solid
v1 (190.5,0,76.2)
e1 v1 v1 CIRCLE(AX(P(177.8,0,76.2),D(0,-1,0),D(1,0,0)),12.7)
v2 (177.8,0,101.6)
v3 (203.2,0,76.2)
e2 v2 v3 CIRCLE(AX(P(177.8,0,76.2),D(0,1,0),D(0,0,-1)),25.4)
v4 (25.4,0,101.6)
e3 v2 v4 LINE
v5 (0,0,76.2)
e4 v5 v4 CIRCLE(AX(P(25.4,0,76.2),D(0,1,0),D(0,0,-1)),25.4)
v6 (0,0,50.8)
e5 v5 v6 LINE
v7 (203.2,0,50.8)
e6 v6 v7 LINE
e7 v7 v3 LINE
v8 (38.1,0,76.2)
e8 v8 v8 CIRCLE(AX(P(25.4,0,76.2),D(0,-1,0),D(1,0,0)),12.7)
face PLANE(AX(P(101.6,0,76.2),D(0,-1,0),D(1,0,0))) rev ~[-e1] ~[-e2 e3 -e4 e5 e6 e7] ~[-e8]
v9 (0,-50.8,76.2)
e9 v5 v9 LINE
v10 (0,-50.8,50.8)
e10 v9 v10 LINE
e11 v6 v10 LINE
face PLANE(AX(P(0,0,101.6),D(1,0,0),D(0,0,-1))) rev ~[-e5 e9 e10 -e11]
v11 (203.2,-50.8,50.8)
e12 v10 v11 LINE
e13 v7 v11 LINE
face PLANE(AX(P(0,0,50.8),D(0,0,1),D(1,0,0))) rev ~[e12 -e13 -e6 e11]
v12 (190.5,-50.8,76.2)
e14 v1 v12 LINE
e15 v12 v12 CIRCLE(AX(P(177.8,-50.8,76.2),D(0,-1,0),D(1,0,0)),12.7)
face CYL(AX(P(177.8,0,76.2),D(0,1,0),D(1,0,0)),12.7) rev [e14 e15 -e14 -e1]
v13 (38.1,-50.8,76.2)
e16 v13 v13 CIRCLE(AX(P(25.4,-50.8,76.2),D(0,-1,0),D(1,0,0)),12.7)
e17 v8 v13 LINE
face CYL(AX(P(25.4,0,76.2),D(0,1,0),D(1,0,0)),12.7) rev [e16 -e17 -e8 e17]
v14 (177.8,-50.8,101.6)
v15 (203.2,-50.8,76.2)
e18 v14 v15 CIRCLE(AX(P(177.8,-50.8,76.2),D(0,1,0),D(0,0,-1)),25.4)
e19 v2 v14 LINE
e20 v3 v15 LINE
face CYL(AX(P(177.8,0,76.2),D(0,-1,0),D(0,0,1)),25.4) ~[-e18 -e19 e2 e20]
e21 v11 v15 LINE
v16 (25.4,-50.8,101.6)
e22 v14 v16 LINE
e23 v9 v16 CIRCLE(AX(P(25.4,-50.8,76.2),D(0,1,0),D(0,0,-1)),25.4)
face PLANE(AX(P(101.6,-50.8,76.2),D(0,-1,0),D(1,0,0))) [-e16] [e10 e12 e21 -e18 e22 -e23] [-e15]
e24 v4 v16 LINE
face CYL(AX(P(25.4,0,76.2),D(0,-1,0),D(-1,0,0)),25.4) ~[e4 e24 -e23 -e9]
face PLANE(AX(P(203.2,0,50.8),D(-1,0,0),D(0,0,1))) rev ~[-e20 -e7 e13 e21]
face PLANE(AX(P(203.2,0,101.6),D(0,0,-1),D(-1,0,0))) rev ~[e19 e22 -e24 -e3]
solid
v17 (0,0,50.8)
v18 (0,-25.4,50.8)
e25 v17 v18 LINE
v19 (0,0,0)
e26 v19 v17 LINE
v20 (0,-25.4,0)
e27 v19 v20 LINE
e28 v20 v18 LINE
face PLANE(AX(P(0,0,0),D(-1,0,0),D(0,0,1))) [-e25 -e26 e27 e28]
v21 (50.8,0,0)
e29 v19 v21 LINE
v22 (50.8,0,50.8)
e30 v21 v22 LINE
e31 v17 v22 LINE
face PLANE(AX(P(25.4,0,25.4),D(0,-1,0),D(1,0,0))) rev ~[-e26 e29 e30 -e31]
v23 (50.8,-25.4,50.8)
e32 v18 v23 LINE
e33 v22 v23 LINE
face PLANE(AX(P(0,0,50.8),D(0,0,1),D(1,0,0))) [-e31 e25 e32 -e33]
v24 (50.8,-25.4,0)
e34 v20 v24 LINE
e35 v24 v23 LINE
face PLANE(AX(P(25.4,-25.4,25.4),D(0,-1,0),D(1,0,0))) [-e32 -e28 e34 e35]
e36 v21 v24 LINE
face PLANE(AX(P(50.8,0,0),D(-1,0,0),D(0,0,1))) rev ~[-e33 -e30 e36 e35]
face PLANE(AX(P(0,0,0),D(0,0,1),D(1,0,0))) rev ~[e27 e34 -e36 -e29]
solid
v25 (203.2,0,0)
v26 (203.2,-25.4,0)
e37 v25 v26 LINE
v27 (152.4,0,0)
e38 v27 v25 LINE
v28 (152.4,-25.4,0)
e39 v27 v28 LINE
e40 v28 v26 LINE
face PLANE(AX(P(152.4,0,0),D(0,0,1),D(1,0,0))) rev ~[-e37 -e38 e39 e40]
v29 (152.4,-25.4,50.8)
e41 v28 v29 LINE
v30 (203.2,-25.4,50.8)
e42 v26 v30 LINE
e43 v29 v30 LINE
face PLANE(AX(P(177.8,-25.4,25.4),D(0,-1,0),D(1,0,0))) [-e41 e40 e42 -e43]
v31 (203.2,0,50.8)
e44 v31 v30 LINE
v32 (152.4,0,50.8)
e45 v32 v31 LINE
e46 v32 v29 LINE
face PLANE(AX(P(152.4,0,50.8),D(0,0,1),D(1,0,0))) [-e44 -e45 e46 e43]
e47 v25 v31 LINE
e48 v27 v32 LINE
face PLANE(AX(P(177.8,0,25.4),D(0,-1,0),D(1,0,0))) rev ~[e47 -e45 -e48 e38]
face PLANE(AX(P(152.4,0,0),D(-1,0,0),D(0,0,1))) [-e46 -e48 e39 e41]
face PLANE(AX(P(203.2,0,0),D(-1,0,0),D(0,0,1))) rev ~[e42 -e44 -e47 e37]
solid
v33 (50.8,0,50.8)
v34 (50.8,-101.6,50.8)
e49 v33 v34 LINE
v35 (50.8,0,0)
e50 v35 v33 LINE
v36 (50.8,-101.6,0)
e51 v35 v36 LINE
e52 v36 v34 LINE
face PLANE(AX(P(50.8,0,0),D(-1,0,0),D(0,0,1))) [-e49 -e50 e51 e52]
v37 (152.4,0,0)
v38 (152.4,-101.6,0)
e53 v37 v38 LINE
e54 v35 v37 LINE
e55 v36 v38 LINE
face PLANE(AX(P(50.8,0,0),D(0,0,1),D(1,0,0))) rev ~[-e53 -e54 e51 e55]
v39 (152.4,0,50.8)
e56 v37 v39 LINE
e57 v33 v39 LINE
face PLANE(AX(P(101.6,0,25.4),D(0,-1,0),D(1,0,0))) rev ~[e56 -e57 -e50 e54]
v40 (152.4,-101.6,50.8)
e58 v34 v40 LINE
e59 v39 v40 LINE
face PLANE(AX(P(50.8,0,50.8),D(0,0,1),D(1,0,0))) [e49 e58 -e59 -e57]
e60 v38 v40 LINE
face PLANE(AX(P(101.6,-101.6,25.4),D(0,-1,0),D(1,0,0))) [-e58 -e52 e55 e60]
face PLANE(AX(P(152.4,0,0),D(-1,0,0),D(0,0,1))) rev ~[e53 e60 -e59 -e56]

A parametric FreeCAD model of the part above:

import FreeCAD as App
import Part
import Sketcher

V = App.Vector
Q = App.Units.Quantity


def edges_at(feature, points):
    """Names of the edges that pass closest to the given points."""
    edges = feature.Shape.Edges
    near = lambda p: min(range(len(edges)), key=lambda i: edges[i].distToShape(Part.Vertex(*p))[0])
    return sorted({f"Edge{near(p) + 1}" for p in points})


def add_polygon(sketch, points):
    """Adds a closed chain of lines whose ends are joined by coincident constraints."""
    first, n = sketch.GeometryCount, len(points)
    for a, b in zip(points, points[1:] + points[:1]):
        sketch.addGeometry(Part.LineSegment(App.Vector(*a, 0), App.Vector(*b, 0)), False)
    for i in range(n):
        sketch.addConstraint(Sketcher.Constraint("Coincident", first + i, 2, first + (i + 1) % n, 1))

doc = App.newDocument("Part")
body = doc.addObject("PartDesign::Body", "Body")

# Sketch on XZ plane
sketch1 = doc.addObject("Sketcher::SketchObject", "Sketch")
body.addObject(sketch1)
sketch1.AttachmentSupport = (doc.XZ_Plane, [""])
sketch1.MapMode = "FlatFace"
add_polygon(sketch1, [(0, 51), (0, 0), (51, 0), (51, 51)])  # lines 0-3
sketch1.addConstraint([
    Sketcher.Constraint("Vertical", 0),
    Sketcher.Constraint("Horizontal", 1),
    Sketcher.Constraint("Vertical", 2),
    Sketcher.Constraint("Horizontal", 3),
    Sketcher.Constraint("Coincident", 0, 2, -1, 1),
    Sketcher.Constraint("Equal", 3, 0),
    Sketcher.Constraint("DistanceX", 1, 1, 1, 2, Q("2 in")),
])
pad1 = doc.addObject("PartDesign::Pad", "Pad")
body.addObject(pad1)
pad1.Profile = sketch1
pad1.Length = Q("1 in")

# Sketch on XZ plane
sketch2 = doc.addObject("Sketcher::SketchObject", "Sketch001")
body.addObject(sketch2)
sketch2.AttachmentSupport = (doc.XZ_Plane, [""])
sketch2.MapMode = "FlatFace"
sketch2.addGeometry([
    Part.Circle(V(178, 76, 0), V(0, 0, 1), 13),
    Part.Circle(V(25, 76, 0), V(0, 0, 1), 13),
], False)
sketch2.addConstraint([
    Sketcher.Constraint("Equal", 0, 1),
    Sketcher.Constraint("Horizontal", 0, 3, 1, 3),
    Sketcher.Constraint("Diameter", 0, Q("1 in")),
    Sketcher.Constraint("DistanceX", -1, 1, 0, 3, Q("7 in")),
    Sketcher.Constraint("DistanceY", -1, 1, 0, 3, Q("3 in")),
    Sketcher.Constraint("DistanceX", -1, 1, 1, 3, Q("1 in")),
])
pocket1 = doc.addObject("PartDesign::Pocket", "Pocket")
body.addObject(pocket1)
pocket1.Profile = sketch2
pocket1.Length = Q("1 in")
body2 = doc.addObject("PartDesign::Body", "Body001")

# Sketch on XZ plane
sketch3 = doc.addObject("Sketcher::SketchObject", "Sketch002")
body2.addObject(sketch3)
sketch3.AttachmentSupport = (doc.getObject("XZ_Plane001"), [""])
sketch3.MapMode = "FlatFace"
add_polygon(sketch3, [(152, 51), (152, 0), (203, 0), (203, 51)])  # lines 0-3
sketch3.addConstraint([
    Sketcher.Constraint("Vertical", 0),
    Sketcher.Constraint("Horizontal", 1),
    Sketcher.Constraint("Vertical", 2),
    Sketcher.Constraint("Horizontal", 3),
    Sketcher.Constraint("PointOnObject", 0, 2, -1),
    Sketcher.Constraint("Equal", 3, 0),
    Sketcher.Constraint("DistanceX", 1, 1, 1, 2, Q("2 in")),
    Sketcher.Constraint("DistanceX", -1, 1, 0, 2, Q("6 in")),
])
pad2 = doc.addObject("PartDesign::Pad", "Pad001")
body2.addObject(pad2)
pad2.Profile = sketch3
pad2.Length = Q("1 in")
body3 = doc.addObject("PartDesign::Body", "Body002")

# Sketch on XZ plane
sketch4 = doc.addObject("Sketcher::SketchObject", "Sketch003")
body3.addObject(sketch4)
sketch4.AttachmentSupport = (doc.getObject("XZ_Plane002"), [""])
sketch4.MapMode = "FlatFace"
add_polygon(sketch4, [(51, 51), (51, 0), (152, 0), (152, 51)])  # lines 0-3
sketch4.addConstraint([
    Sketcher.Constraint("Vertical", 0),
    Sketcher.Constraint("Horizontal", 1),
    Sketcher.Constraint("Vertical", 2),
    Sketcher.Constraint("Horizontal", 3),
    Sketcher.Constraint("PointOnObject", 0, 2, -1),
    Sketcher.Constraint("DistanceX", 1, 1, 1, 2, Q("4 in")),
    Sketcher.Constraint("DistanceY", 0, 2, 0, 1, Q("2 in")),
    Sketcher.Constraint("DistanceX", -1, 1, 0, 2, Q("2 in")),
])
pad3 = doc.addObject("PartDesign::Pad", "Pad002")
body3.addObject(pad3)
pad3.Profile = sketch4
pad3.Length = Q("4 in")
body4 = doc.addObject("PartDesign::Body", "Body003")

# Sketch on XZ plane
sketch5 = doc.addObject("Sketcher::SketchObject", "Sketch004")
body4.addObject(sketch5)
sketch5.AttachmentSupport = (doc.getObject("XZ_Plane003"), [""])
sketch5.MapMode = "FlatFace"
add_polygon(sketch5, [(0, 102), (0, 51), (203, 51), (203, 102)])  # lines 0-3
sketch5.addGeometry(Part.Circle(V(25, 76, 0), V(0, 0, 1), 13), False)  # 4
sketch5.addGeometry(Part.Circle(V(178, 76, 0), V(0, 0, 1), 13), False)  # 5
sketch5.addConstraint([
    Sketcher.Constraint("Vertical", 0),
    Sketcher.Constraint("Horizontal", 1),
    Sketcher.Constraint("Vertical", 2),
    Sketcher.Constraint("Horizontal", 3),
    Sketcher.Constraint("Equal", 4, 5),
    Sketcher.Constraint("PointOnObject", 0, 2, -2),
    Sketcher.Constraint("Horizontal", 4, 3, 5, 3),
    Sketcher.Constraint("Diameter", 4, Q("1 in")),
    Sketcher.Constraint("DistanceX", 1, 1, 1, 2, Q("8 in")),
    Sketcher.Constraint("DistanceY", 0, 2, 0, 1, Q("2 in")),
    Sketcher.Constraint("DistanceX", -1, 1, 4, 3, Q("1 in")),
    Sketcher.Constraint("DistanceY", -1, 1, 4, 3, Q("3 in")),
    Sketcher.Constraint("DistanceX", -1, 1, 5, 3, Q("7 in")),
    Sketcher.Constraint("DistanceY", -1, 1, 0, 2, Q("2 in")),
])
pad4 = doc.addObject("PartDesign::Pad", "Pad003")
body4.addObject(pad4)
pad4.Profile = sketch5
pad4.Length = Q("2 in")
doc.recompute()

fillet = doc.addObject("PartDesign::Fillet", "Fillet")
body4.addObject(fillet)
fillet.Base = (pad4, edges_at(pad4, [(0, -25.4, 101.6)]))
fillet.Radius = Q("1 in")
doc.recompute()

fillet2 = doc.addObject("PartDesign::Fillet", "Fillet001")
body4.addObject(fillet2)
fillet2.Base = (fillet, edges_at(fillet, [(203.2, -25.4, 101.6)]))
fillet2.Radius = Q("1 in")

doc.recompute()
